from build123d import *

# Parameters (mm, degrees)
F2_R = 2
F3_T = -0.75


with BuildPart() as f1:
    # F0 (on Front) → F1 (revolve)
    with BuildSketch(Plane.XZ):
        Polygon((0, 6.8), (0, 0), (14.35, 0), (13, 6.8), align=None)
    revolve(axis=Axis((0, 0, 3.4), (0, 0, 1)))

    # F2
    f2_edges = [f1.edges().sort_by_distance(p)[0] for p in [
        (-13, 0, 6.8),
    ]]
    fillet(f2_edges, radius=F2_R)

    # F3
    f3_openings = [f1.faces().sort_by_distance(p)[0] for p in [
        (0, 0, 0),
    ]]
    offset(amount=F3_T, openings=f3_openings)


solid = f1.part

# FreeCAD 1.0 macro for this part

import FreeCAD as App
import Part
import Sketcher

V = App.Vector
Q = App.Units.Quantity


def edges_at(feature, points):
    """Names of the edges that pass closest to the given points."""
    edges = feature.Shape.Edges
    near = lambda p: min(range(len(edges)), key=lambda i: edges[i].distToShape(Part.Vertex(*p))[0])
    return sorted({f"Edge{near(p) + 1}" for p in points})


def faces_at(feature, points):
    """Names of the faces that lie closest to the given points."""
    faces = feature.Shape.Faces
    near = lambda p: min(range(len(faces)), key=lambda i: faces[i].distToShape(Part.Vertex(*p))[0])
    return sorted({f"Face{near(p) + 1}" for p in points})

doc = App.newDocument("Part")
body = doc.addObject("PartDesign::Body", "Body")

# Sketch on XZ plane
sketch1 = doc.addObject("Sketcher::SketchObject", "Sketch")
body.addObject(sketch1)
sketch1.AttachmentSupport = (doc.XZ_Plane, [""])
sketch1.MapMode = "FlatFace"
sketch1.addGeometry([
    Part.LineSegment(V(0, 7, 0), V(0, 0, 0)),
    Part.LineSegment(V(0, 0, 0), V(14, 0, 0)),
    Part.LineSegment(V(14, 0, 0), V(13, 7, 0)),
    Part.LineSegment(V(13, 7, 0), V(0, 7, 0)),
], False)
sketch1.addConstraint([
    Sketcher.Constraint("Coincident", 0, 2, 1, 1),
    Sketcher.Constraint("Coincident", 1, 2, 2, 1),
    Sketcher.Constraint("Coincident", 2, 2, 3, 1),
    Sketcher.Constraint("Coincident", 3, 2, 0, 1),
    Sketcher.Constraint("Vertical", 0),
    Sketcher.Constraint("Horizontal", 1),
    Sketcher.Constraint("Horizontal", 3),
    Sketcher.Constraint("Coincident", 0, 2, -1, 1),
    Sketcher.Constraint("DistanceX", 3, 2, 3, 1, Q("13 mm")),
    Sketcher.Constraint("DistanceY", 0, 2, 0, 1, Q("6.8 mm")),
    Sketcher.Constraint("DistanceX", 1, 1, 1, 2, Q("14.35 mm")),
])
revolution = doc.addObject("PartDesign::Revolution", "Revolution")
body.addObject(revolution)
revolution.Profile = sketch1
revolution.ReferenceAxis = (sketch1, ["V_Axis"])
revolution.Angle = 360
doc.recompute()

fillet = doc.addObject("PartDesign::Fillet", "Fillet")
body.addObject(fillet)
fillet.Base = (revolution, edges_at(revolution, [(-13, 0, 6.8)]))
fillet.Radius = 2
doc.recompute()

thickness = doc.addObject("PartDesign::Thickness", "Thickness")
body.addObject(thickness)
thickness.Base = (fillet, faces_at(fillet, [(0, 0, 0)]))
thickness.Value = 0.75
thickness.Reversed = True
thickness.Join = "Arc"

doc.recompute()
